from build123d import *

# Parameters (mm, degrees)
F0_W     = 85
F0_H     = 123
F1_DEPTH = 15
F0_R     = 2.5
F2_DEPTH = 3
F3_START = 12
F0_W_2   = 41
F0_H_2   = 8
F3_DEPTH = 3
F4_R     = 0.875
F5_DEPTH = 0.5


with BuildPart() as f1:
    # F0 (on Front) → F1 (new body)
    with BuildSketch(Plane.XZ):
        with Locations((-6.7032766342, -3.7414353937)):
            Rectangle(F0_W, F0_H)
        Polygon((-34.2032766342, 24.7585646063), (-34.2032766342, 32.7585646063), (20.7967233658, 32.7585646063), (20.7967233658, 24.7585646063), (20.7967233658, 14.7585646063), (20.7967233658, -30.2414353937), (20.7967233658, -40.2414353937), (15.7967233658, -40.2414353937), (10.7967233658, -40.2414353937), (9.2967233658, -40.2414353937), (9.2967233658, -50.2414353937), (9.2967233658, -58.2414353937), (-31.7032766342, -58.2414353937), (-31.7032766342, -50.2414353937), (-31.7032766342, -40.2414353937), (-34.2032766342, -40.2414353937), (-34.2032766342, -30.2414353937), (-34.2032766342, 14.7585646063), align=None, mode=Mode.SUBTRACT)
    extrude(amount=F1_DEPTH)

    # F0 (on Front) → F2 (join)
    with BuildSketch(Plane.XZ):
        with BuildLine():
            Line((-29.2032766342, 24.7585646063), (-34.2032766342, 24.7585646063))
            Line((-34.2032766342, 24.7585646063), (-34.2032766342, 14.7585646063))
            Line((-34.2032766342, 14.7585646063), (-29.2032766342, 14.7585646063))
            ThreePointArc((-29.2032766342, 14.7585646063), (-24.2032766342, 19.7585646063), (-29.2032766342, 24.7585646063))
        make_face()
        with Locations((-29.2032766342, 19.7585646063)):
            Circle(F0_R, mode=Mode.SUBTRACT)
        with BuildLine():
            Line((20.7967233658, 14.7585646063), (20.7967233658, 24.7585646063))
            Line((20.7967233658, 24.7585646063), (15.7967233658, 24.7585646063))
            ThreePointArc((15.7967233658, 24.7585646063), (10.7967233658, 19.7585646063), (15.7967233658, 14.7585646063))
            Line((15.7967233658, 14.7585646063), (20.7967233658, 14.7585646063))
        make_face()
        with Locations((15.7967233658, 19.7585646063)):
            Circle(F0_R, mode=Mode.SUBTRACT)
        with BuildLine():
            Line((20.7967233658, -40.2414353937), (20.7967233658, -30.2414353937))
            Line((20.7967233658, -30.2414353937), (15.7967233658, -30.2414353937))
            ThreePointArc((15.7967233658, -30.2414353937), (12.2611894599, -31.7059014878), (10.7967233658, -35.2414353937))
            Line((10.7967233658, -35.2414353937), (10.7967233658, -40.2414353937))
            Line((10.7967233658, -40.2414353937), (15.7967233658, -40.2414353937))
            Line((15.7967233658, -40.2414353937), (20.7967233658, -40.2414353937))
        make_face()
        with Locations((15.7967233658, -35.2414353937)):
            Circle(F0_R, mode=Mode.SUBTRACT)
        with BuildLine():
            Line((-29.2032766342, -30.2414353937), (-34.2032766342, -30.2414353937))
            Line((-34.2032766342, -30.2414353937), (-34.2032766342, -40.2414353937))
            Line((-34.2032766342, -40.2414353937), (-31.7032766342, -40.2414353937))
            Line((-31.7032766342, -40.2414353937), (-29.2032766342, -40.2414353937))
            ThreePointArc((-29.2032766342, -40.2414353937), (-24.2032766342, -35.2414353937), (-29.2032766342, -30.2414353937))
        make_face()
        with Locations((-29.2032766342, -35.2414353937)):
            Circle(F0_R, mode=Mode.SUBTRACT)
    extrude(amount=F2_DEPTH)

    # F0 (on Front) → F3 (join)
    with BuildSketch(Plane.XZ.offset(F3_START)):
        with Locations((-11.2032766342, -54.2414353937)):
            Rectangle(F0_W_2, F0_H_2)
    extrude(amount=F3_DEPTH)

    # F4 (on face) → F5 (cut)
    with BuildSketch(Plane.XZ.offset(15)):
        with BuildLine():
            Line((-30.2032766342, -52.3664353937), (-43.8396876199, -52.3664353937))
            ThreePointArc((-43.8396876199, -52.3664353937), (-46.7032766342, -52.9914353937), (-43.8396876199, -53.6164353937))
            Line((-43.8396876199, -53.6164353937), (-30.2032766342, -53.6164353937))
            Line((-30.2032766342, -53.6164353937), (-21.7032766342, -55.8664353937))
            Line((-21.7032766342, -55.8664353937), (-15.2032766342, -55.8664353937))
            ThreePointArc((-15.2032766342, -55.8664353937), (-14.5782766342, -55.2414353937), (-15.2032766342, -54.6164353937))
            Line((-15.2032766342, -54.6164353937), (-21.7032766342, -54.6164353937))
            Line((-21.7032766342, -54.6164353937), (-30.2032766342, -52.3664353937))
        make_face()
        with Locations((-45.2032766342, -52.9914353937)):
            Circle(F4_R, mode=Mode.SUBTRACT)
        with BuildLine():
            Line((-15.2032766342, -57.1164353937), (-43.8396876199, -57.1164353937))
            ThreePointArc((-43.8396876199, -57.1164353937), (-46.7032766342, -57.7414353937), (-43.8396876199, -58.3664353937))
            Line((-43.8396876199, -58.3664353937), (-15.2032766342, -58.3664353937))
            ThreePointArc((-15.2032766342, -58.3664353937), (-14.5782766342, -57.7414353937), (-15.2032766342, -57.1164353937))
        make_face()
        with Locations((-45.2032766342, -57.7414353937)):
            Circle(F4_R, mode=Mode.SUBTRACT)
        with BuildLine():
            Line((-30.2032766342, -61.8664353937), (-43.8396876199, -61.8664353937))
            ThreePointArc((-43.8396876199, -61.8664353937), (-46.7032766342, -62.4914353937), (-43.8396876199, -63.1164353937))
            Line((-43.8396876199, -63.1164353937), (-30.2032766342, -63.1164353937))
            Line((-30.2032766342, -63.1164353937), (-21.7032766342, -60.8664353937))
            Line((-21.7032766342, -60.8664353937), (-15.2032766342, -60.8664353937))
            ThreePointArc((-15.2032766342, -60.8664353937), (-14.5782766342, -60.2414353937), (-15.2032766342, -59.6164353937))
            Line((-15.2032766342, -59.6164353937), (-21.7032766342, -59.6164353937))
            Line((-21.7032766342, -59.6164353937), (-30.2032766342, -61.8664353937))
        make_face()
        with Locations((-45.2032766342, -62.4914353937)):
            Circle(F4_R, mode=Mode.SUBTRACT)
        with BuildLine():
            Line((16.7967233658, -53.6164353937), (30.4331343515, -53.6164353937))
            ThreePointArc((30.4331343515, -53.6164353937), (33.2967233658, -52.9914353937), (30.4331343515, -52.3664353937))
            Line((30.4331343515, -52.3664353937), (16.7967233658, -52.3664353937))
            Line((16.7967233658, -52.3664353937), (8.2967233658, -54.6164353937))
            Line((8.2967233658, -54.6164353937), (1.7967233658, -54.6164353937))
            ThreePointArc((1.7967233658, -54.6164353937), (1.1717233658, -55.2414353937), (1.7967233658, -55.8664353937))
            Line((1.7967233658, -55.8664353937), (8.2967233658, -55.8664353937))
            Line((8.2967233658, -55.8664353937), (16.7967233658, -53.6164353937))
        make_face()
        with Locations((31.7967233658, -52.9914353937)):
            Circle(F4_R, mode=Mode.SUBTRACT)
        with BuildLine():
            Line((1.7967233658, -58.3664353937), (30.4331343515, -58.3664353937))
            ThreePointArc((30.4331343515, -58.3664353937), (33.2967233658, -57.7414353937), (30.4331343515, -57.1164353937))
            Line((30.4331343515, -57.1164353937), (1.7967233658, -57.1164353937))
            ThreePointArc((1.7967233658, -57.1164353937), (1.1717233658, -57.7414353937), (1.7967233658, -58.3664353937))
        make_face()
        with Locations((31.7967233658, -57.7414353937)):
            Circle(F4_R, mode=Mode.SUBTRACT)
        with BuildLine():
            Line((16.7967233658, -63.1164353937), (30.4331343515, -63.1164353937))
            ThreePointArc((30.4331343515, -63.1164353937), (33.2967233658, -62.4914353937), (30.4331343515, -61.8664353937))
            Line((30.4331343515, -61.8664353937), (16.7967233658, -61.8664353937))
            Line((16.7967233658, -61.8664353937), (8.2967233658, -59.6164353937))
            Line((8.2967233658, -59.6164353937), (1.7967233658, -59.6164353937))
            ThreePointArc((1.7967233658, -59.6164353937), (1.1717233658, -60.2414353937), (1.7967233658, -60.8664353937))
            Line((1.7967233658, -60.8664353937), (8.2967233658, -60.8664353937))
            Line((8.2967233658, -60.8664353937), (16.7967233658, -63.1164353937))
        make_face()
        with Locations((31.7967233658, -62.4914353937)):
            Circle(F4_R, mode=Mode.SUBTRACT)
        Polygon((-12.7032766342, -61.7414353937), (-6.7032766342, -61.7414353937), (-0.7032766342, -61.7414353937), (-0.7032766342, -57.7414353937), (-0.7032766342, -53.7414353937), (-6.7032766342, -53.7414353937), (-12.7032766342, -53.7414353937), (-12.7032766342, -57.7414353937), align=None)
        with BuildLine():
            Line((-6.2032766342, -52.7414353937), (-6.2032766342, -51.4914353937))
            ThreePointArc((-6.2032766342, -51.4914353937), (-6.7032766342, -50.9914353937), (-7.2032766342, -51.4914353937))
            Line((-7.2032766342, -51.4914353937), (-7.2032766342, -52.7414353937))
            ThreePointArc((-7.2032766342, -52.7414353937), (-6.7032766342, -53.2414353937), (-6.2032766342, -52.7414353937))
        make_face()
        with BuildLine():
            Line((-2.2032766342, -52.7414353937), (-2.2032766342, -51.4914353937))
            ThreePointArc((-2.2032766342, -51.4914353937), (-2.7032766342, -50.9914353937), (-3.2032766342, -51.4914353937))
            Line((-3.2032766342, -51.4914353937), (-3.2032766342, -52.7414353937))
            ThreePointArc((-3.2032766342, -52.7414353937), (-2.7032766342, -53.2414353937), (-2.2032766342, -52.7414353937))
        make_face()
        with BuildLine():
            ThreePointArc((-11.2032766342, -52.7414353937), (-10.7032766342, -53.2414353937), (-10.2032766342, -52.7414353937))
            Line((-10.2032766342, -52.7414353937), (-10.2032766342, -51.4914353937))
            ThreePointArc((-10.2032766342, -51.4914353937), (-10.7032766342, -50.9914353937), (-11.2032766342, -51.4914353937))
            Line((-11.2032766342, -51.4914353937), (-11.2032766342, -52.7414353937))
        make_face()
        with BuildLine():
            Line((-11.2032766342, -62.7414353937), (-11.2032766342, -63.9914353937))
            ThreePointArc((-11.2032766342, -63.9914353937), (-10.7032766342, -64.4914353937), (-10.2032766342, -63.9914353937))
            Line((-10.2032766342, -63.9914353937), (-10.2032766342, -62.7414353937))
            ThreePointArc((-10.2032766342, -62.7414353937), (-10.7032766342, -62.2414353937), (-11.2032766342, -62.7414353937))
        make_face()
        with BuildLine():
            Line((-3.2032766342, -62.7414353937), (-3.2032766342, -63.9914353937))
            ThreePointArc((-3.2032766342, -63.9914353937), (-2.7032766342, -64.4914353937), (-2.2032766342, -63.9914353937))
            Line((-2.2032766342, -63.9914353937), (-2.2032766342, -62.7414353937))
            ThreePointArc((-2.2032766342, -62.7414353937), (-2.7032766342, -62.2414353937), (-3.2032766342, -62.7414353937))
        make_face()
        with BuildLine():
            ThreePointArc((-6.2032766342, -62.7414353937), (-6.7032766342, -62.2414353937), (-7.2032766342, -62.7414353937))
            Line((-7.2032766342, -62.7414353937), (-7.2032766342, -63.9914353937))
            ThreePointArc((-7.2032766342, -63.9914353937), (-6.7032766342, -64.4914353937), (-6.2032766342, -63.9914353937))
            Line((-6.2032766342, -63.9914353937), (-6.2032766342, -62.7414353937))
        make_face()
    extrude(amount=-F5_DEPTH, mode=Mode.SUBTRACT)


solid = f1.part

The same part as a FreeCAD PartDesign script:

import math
import FreeCAD as App
import Part
import Sketcher
from FreeCAD import Vector

doc = App.newDocument("Part")
body = doc.addObject("PartDesign::Body", "Body")

sketch1 = body.newObject("Sketcher::SketchObject", "Sketch")
sketch1.AttachmentSupport = (doc.getObject("XZ_Plane"), [""])
sketch1.MapMode = "FlatFace"
sketch1.addGeometry([
    Part.LineSegment(Vector(-49.2, 57.8, 0), Vector(-49.2, -65.2, 0)),
    Part.LineSegment(Vector(-49.2, -65.2, 0), Vector(35.8, -65.2, 0)),
    Part.LineSegment(Vector(35.8, -65.2, 0), Vector(35.8, 57.8, 0)),
    Part.LineSegment(Vector(35.8, 57.8, 0), Vector(-49.2, 57.8, 0)),
    Part.LineSegment(Vector(-34.2, -40.2, 0), Vector(-34.2, 32.8, 0)),
    Part.LineSegment(Vector(-34.2, 32.8, 0), Vector(20.8, 32.8, 0)),
    Part.LineSegment(Vector(20.8, 32.8, 0), Vector(20.8, -40.2, 0)),
    Part.LineSegment(Vector(20.8, -40.2, 0), Vector(9.3, -40.2, 0)),
    Part.LineSegment(Vector(9.3, -40.2, 0), Vector(9.3, -58.2, 0)),
    Part.LineSegment(Vector(9.3, -58.2, 0), Vector(-31.7, -58.2, 0)),
    Part.LineSegment(Vector(-31.7, -58.2, 0), Vector(-31.7, -40.2, 0)),
    Part.LineSegment(Vector(-31.7, -40.2, 0), Vector(-34.2, -40.2, 0)),
], False)
sketch1.addConstraint([
    Sketcher.Constraint("Coincident", 0, 2, 1, 1),
    Sketcher.Constraint("Coincident", 1, 2, 2, 1),
    Sketcher.Constraint("Coincident", 2, 2, 3, 1),
    Sketcher.Constraint("Coincident", 3, 2, 0, 1),
    Sketcher.Constraint("Coincident", 4, 2, 5, 1),
    Sketcher.Constraint("Coincident", 5, 2, 6, 1),
    Sketcher.Constraint("Coincident", 6, 2, 7, 1),
    Sketcher.Constraint("Coincident", 7, 2, 8, 1),
    Sketcher.Constraint("Coincident", 8, 2, 9, 1),
    Sketcher.Constraint("Coincident", 9, 2, 10, 1),
    Sketcher.Constraint("Coincident", 10, 2, 11, 1),
    Sketcher.Constraint("Coincident", 11, 2, 4, 1),
    Sketcher.Constraint("Vertical", 0),
    Sketcher.Constraint("Horizontal", 1),
    Sketcher.Constraint("Vertical", 2),
    Sketcher.Constraint("Horizontal", 3),
    Sketcher.Constraint("Vertical", 4),
    Sketcher.Constraint("Horizontal", 5),
    Sketcher.Constraint("Vertical", 6),
    Sketcher.Constraint("Horizontal", 7),
    Sketcher.Constraint("Vertical", 8),
    Sketcher.Constraint("Horizontal", 9),
    Sketcher.Constraint("Vertical", 10),
    Sketcher.Constraint("Horizontal", 11),
    Sketcher.Constraint("Horizontal", 7, 2, 10, 2),
    Sketcher.Constraint("DistanceX", 1, 1, 1, 2, 85.0),
    Sketcher.Constraint("DistanceX", 5, 1, 5, 2, 55.0),
    Sketcher.Constraint("DistanceX", 9, 2, 9, 1, 41.0),
    Sketcher.Constraint("DistanceY", 0, 2, 0, 1, 123.0),
    Sketcher.Constraint("DistanceY", 4, 1, 4, 2, 73.0),
    Sketcher.Constraint("DistanceY", 8, 2, 8, 1, 18.0),
    Sketcher.Constraint("DistanceX", 7, 2, 7, 1, 11.5),
    Sketcher.Constraint("DistanceX", 3, 2, 4, 2, 15.0),
    Sketcher.Constraint("DistanceY", 4, 2, 3, 2, 25.0),
    Sketcher.Constraint("DistanceX", 0, 2, -1, 1, 49.203277),
    Sketcher.Constraint("DistanceY", 0, 2, -1, 1, 65.241435),
])
pad1 = body.newObject("PartDesign::Pad", "Pad")
pad1.Profile = sketch1
pad1.Length = 15

sketch2 = body.newObject("Sketcher::SketchObject", "Sketch001")
sketch2.AttachmentSupport = (doc.getObject("XZ_Plane"), [""])
sketch2.MapMode = "FlatFace"
sketch2.addGeometry([
    Part.LineSegment(Vector(-29.2, 24.8, 0), Vector(-34.2, 24.8, 0)),
    Part.LineSegment(Vector(-34.2, 24.8, 0), Vector(-34.2, 14.8, 0)),
    Part.LineSegment(Vector(-34.2, 14.8, 0), Vector(-29.2, 14.8, 0)),
    Part.ArcOfCircle(Part.Circle(Vector(-29.2, 19.8, 0), Vector(0, 0, 1), 5), math.radians(-90), math.radians(90)),
    Part.Circle(Vector(-29.2, 19.8, 0), Vector(0, 0, 1), 2.5),
    Part.LineSegment(Vector(20.8, 14.8, 0), Vector(20.8, 24.8, 0)),
    Part.LineSegment(Vector(20.8, 24.8, 0), Vector(15.8, 24.8, 0)),
    Part.ArcOfCircle(Part.Circle(Vector(15.8, 19.8, 0), Vector(0, 0, 1), 5), math.radians(90), math.radians(270)),
    Part.LineSegment(Vector(15.8, 14.8, 0), Vector(20.8, 14.8, 0)),
    Part.Circle(Vector(15.8, 19.8, 0), Vector(0, 0, 1), 2.5),
    Part.LineSegment(Vector(20.8, -40.2, 0), Vector(20.8, -30.2, 0)),
    Part.LineSegment(Vector(20.8, -30.2, 0), Vector(15.8, -30.2, 0)),
    Part.ArcOfCircle(Part.Circle(Vector(15.8, -35.2, 0), Vector(0, 0, 1), 5), math.radians(90), math.radians(180)),
    Part.LineSegment(Vector(10.8, -35.2, 0), Vector(10.8, -40.2, 0)),
    Part.LineSegment(Vector(10.8, -40.2, 0), Vector(20.8, -40.2, 0)),
    Part.Circle(Vector(15.8, -35.2, 0), Vector(0, 0, 1), 2.5),
    Part.LineSegment(Vector(-29.2, -30.2, 0), Vector(-34.2, -30.2, 0)),
    Part.LineSegment(Vector(-34.2, -30.2, 0), Vector(-34.2, -40.2, 0)),
    Part.LineSegment(Vector(-34.2, -40.2, 0), Vector(-29.2, -40.2, 0)),
    Part.ArcOfCircle(Part.Circle(Vector(-29.2, -35.2, 0), Vector(0, 0, 1), 5), math.radians(-90), math.radians(90)),
    Part.Circle(Vector(-29.2, -35.2, 0), Vector(0, 0, 1), 2.5),
], False)
sketch2.addConstraint([
    Sketcher.Constraint("Coincident", 0, 2, 1, 1),
    Sketcher.Constraint("Coincident", 1, 2, 2, 1),
    Sketcher.Constraint("Tangent", 2, 2, 3, 1),
    Sketcher.Constraint("Tangent", 3, 2, 0, 1),
    Sketcher.Constraint("Coincident", 5, 2, 6, 1),
    Sketcher.Constraint("Tangent", 6, 2, 7, 1),
    Sketcher.Constraint("Tangent", 7, 2, 8, 1),
    Sketcher.Constraint("Coincident", 8, 2, 5, 1),
    Sketcher.Constraint("Coincident", 10, 2, 11, 1),
    Sketcher.Constraint("Tangent", 11, 2, 12, 1),
    Sketcher.Constraint("Tangent", 12, 2, 13, 1),
    Sketcher.Constraint("Coincident", 13, 2, 14, 1),
    Sketcher.Constraint("Coincident", 14, 2, 10, 1),
    Sketcher.Constraint("Coincident", 16, 2, 17, 1),
    Sketcher.Constraint("Coincident", 17, 2, 18, 1),
    Sketcher.Constraint("Tangent", 18, 2, 19, 1),
    Sketcher.Constraint("Tangent", 19, 2, 16, 1),
    Sketcher.Constraint("Horizontal", 0),
    Sketcher.Constraint("Vertical", 1),
    Sketcher.Constraint("Horizontal", 2),
    Sketcher.Constraint("Vertical", 5),
    Sketcher.Constraint("Horizontal", 6),
    Sketcher.Constraint("Horizontal", 8),
    Sketcher.Constraint("Vertical", 10),
    Sketcher.Constraint("Horizontal", 11),
    Sketcher.Constraint("Vertical", 13),
    Sketcher.Constraint("Horizontal", 14),
    Sketcher.Constraint("Horizontal", 16),
    Sketcher.Constraint("Vertical", 17),
    Sketcher.Constraint("Horizontal", 18),
    Sketcher.Constraint("Coincident", 4, 3, 3, 3),
    Sketcher.Constraint("Coincident", 9, 3, 7, 3),
    Sketcher.Constraint("Coincident", 15, 3, 12, 3),
    Sketcher.Constraint("Coincident", 20, 3, 19, 3),
    Sketcher.Constraint("Equal", 3, 7),
    Sketcher.Constraint("Equal", 4, 9),
    Sketcher.Constraint("Equal", 7, 12),
    Sketcher.Constraint("Equal", 9, 15),
    Sketcher.Constraint("Equal", 12, 19),
    Sketcher.Constraint("Equal", 15, 20),
    Sketcher.Constraint("Horizontal", 4, 3, 7, 3),
    Sketcher.Constraint("Horizontal", 15, 3, 19, 3),
    Sketcher.Constraint("Horizontal", 14, 2, 17, 2),
    Sketcher.Constraint("Vertical", 9, 3, 12, 3),
    Sketcher.Constraint("Vertical", 4, 3, 19, 3),
    Sketcher.Constraint("Vertical", 8, 2, 10, 2),
    Sketcher.Constraint("Vertical", 1, 2, 16, 2),
    Sketcher.Constraint("Equal", 2, 6),
    Sketcher.Constraint("Equal", 14, 1),
    Sketcher.Constraint("Diameter", 4, 5.0),
    Sketcher.Constraint("Radius", 3, 5.0),
    Sketcher.Constraint("DistanceX", 3, 3, 7, 3, 45.0),
    Sketcher.Constraint("DistanceY", 12, 3, 7, 3, 55.0),
    Sketcher.Constraint("DistanceX", 3, 3, -1, 1, 29.203277),
    Sketcher.Constraint("DistanceY", -1, 1, 3, 3, 19.758565),
])
pad2 = body.newObject("PartDesign::Pad", "Pad001")
pad2.Profile = sketch2
pad2.Length = 3

sketch3 = body.newObject("Sketcher::SketchObject", "Sketch002")
sketch3.AttachmentSupport = (doc.getObject("XZ_Plane"), [""])
sketch3.MapMode = "FlatFace"
sketch3.AttachmentOffset = App.Placement(Vector(0, 0, 12), App.Rotation())
sketch3.addGeometry([
    Part.LineSegment(Vector(-32, -50, 0), Vector(-32, -58, 0)),
    Part.LineSegment(Vector(-32, -58, 0), Vector(9, -58, 0)),
    Part.LineSegment(Vector(9, -58, 0), Vector(9, -50, 0)),
    Part.LineSegment(Vector(9, -50, 0), Vector(-32, -50, 0)),
], False)
sketch3.addConstraint([
    Sketcher.Constraint("Coincident", 0, 2, 1, 1),
    Sketcher.Constraint("Coincident", 1, 2, 2, 1),
    Sketcher.Constraint("Coincident", 2, 2, 3, 1),
    Sketcher.Constraint("Coincident", 3, 2, 0, 1),
    Sketcher.Constraint("Vertical", 0),
    Sketcher.Constraint("Horizontal", 1),
    Sketcher.Constraint("Vertical", 2),
    Sketcher.Constraint("Horizontal", 3),
    Sketcher.Constraint("DistanceX", 1, 1, 1, 2, 41.0),
    Sketcher.Constraint("DistanceY", 0, 2, 0, 1, 8.0),
    Sketcher.Constraint("DistanceX", 0, 2, -1, 1, 31.703277),
    Sketcher.Constraint("DistanceY", 0, 2, -1, 1, 58.241435),
])
pad3 = body.newObject("PartDesign::Pad", "Pad002")
pad3.Profile = sketch3
pad3.Length = 3

sketch4 = body.newObject("Sketcher::SketchObject", "Sketch003")
sketch4.AttachmentSupport = (doc.getObject("XZ_Plane"), [""])
sketch4.MapMode = "FlatFace"
sketch4.AttachmentOffset = App.Placement(Vector(0, 0, 15), App.Rotation())
sketch4.addGeometry([
    Part.LineSegment(Vector(-30.2, -52.4, 0), Vector(-43.8, -52.4, 0)),
    Part.ArcOfCircle(Part.Circle(Vector(-45.2, -53, 0), Vector(0, 0, 1), 1.5), math.radians(25), math.radians(335)),
    Part.LineSegment(Vector(-43.8, -53.6, 0), Vector(-30.2, -53.6, 0)),
    Part.LineSegment(Vector(-30.2, -53.6, 0), Vector(-21.7, -55.9, 0)),
    Part.LineSegment(Vector(-21.7, -55.9, 0), Vector(-15.2, -55.9, 0)),
    Part.ArcOfCircle(Part.Circle(Vector(-15.2, -55.2, 0), Vector(0, 0, 1), 0.6), math.radians(-90), math.radians(90)),
    Part.LineSegment(Vector(-15.2, -54.6, 0), Vector(-21.7, -54.6, 0)),
    Part.LineSegment(Vector(-21.7, -54.6, 0), Vector(-30.2, -52.4, 0)),
    Part.Circle(Vector(-45.2, -53, 0), Vector(0, 0, 1), 0.9),
    Part.LineSegment(Vector(-15.2, -57.1, 0), Vector(-43.8, -57.1, 0)),
    Part.ArcOfCircle(Part.Circle(Vector(-45.2, -57.7, 0), Vector(0, 0, 1), 1.5), math.radians(25), math.radians(335)),
    Part.LineSegment(Vector(-43.8, -58.4, 0), Vector(-15.2, -58.4, 0)),
    Part.ArcOfCircle(Part.Circle(Vector(-15.2, -57.7, 0), Vector(0, 0, 1), 0.6), math.radians(-90), math.radians(90)),
    Part.Circle(Vector(-45.2, -57.7, 0), Vector(0, 0, 1), 0.9),
    Part.LineSegment(Vector(-30.2, -61.9, 0), Vector(-43.8, -61.9, 0)),
    Part.ArcOfCircle(Part.Circle(Vector(-45.2, -62.5, 0), Vector(0, 0, 1), 1.5), math.radians(25), math.radians(335)),
    Part.LineSegment(Vector(-43.8, -63.1, 0), Vector(-30.2, -63.1, 0)),
    Part.LineSegment(Vector(-30.2, -63.1, 0), Vector(-21.7, -60.9, 0)),
    Part.LineSegment(Vector(-21.7, -60.9, 0), Vector(-15.2, -60.9, 0)),
    Part.ArcOfCircle(Part.Circle(Vector(-15.2, -60.2, 0), Vector(0, 0, 1), 0.6), math.radians(-90), math.radians(90)),
    Part.LineSegment(Vector(-15.2, -59.6, 0), Vector(-21.7, -59.6, 0)),
    Part.LineSegment(Vector(-21.7, -59.6, 0), Vector(-30.2, -61.9, 0)),
    Part.Circle(Vector(-45.2, -62.5, 0), Vector(0, 0, 1), 0.9),
    Part.LineSegment(Vector(16.8, -53.6, 0), Vector(30.4, -53.6, 0)),
    Part.ArcOfCircle(Part.Circle(Vector(31.8, -53, 0), Vector(0, 0, 1), 1.5), math.radians(-155), math.radians(155)),
    Part.LineSegment(Vector(30.4, -52.4, 0), Vector(16.8, -52.4, 0)),
    Part.LineSegment(Vector(16.8, -52.4, 0), Vector(8.3, -54.6, 0)),
    Part.LineSegment(Vector(8.3, -54.6, 0), Vector(1.8, -54.6, 0)),
    Part.ArcOfCircle(Part.Circle(Vector(1.8, -55.2, 0), Vector(0, 0, 1), 0.6), math.radians(90), math.radians(270)),
    Part.LineSegment(Vector(1.8, -55.9, 0), Vector(8.3, -55.9, 0)),
    Part.LineSegment(Vector(8.3, -55.9, 0), Vector(16.8, -53.6, 0)),
    Part.Circle(Vector(31.8, -53, 0), Vector(0, 0, 1), 0.9),
    Part.LineSegment(Vector(1.8, -58.4, 0), Vector(30.4, -58.4, 0)),
    Part.ArcOfCircle(Part.Circle(Vector(31.8, -57.7, 0), Vector(0, 0, 1), 1.5), math.radians(-155), math.radians(155)),
    Part.LineSegment(Vector(30.4, -57.1, 0), Vector(1.8, -57.1, 0)),
    Part.ArcOfCircle(Part.Circle(Vector(1.8, -57.7, 0), Vector(0, 0, 1), 0.6), math.radians(90), math.radians(270)),
    Part.Circle(Vector(31.8, -57.7, 0), Vector(0, 0, 1), 0.9),
    Part.LineSegment(Vector(16.8, -63.1, 0), Vector(30.4, -63.1, 0)),
    Part.ArcOfCircle(Part.Circle(Vector(31.8, -62.5, 0), Vector(0, 0, 1), 1.5), math.radians(-155), math.radians(155)),
    Part.LineSegment(Vector(30.4, -61.9, 0), Vector(16.8, -61.9, 0)),
    Part.LineSegment(Vector(16.8, -61.9, 0), Vector(8.3, -59.6, 0)),
    Part.LineSegment(Vector(8.3, -59.6, 0), Vector(1.8, -59.6, 0)),
    Part.ArcOfCircle(Part.Circle(Vector(1.8, -60.2, 0), Vector(0, 0, 1), 0.6), math.radians(90), math.radians(270)),
    Part.LineSegment(Vector(1.8, -60.9, 0), Vector(8.3, -60.9, 0)),
    Part.LineSegment(Vector(8.3, -60.9, 0), Vector(16.8, -63.1, 0)),
    Part.Circle(Vector(31.8, -62.5, 0), Vector(0, 0, 1), 0.9),
    Part.LineSegment(Vector(-12.7, -61.7, 0), Vector(-0.7, -61.7, 0)),
    Part.LineSegment(Vector(-0.7, -61.7, 0), Vector(-0.7, -53.7, 0)),
    Part.LineSegment(Vector(-0.7, -53.7, 0), Vector(-12.7, -53.7, 0)),
    Part.LineSegment(Vector(-12.7, -53.7, 0), Vector(-12.7, -61.7, 0)),
    Part.LineSegment(Vector(-6.2, -52.7, 0), Vector(-6.2, -51.5, 0)),
    Part.ArcOfCircle(Part.Circle(Vector(-6.7, -51.5, 0), Vector(0, 0, 1), 0.5), math.radians(0), math.radians(180)),
    Part.LineSegment(Vector(-7.2, -51.5, 0), Vector(-7.2, -52.7, 0)),
    Part.ArcOfCircle(Part.Circle(Vector(-6.7, -52.7, 0), Vector(0, 0, 1), 0.5), math.radians(180), math.radians(360)),
    Part.LineSegment(Vector(-2.2, -52.7, 0), Vector(-2.2, -51.5, 0)),
    Part.ArcOfCircle(Part.Circle(Vector(-2.7, -51.5, 0), Vector(0, 0, 1), 0.5), math.radians(0), math.radians(180)),
    Part.LineSegment(Vector(-3.2, -51.5, 0), Vector(-3.2, -52.7, 0)),
    Part.ArcOfCircle(Part.Circle(Vector(-2.7, -52.7, 0), Vector(0, 0, 1), 0.5), math.radians(180), math.radians(360)),
    Part.ArcOfCircle(Part.Circle(Vector(-10.7, -52.7, 0), Vector(0, 0, 1), 0.5), math.radians(180), math.radians(360)),
    Part.LineSegment(Vector(-10.2, -52.7, 0), Vector(-10.2, -51.5, 0)),
    Part.ArcOfCircle(Part.Circle(Vector(-10.7, -51.5, 0), Vector(0, 0, 1), 0.5), math.radians(0), math.radians(180)),
    Part.LineSegment(Vector(-11.2, -51.5, 0), Vector(-11.2, -52.7, 0)),
    Part.LineSegment(Vector(-11.2, -62.7, 0), Vector(-11.2, -64, 0)),
    Part.ArcOfCircle(Part.Circle(Vector(-10.7, -64, 0), Vector(0, 0, 1), 0.5), math.radians(180), math.radians(360)),
    Part.LineSegment(Vector(-10.2, -64, 0), Vector(-10.2, -62.7, 0)),
    Part.ArcOfCircle(Part.Circle(Vector(-10.7, -62.7, 0), Vector(0, 0, 1), 0.5), math.radians(0), math.radians(180)),
    Part.LineSegment(Vector(-3.2, -62.7, 0), Vector(-3.2, -64, 0)),
    Part.ArcOfCircle(Part.Circle(Vector(-2.7, -64, 0), Vector(0, 0, 1), 0.5), math.radians(180), math.radians(360)),
    Part.LineSegment(Vector(-2.2, -64, 0), Vector(-2.2, -62.7, 0)),
    Part.ArcOfCircle(Part.Circle(Vector(-2.7, -62.7, 0), Vector(0, 0, 1), 0.5), math.radians(0), math.radians(180)),
    Part.ArcOfCircle(Part.Circle(Vector(-6.7, -62.7, 0), Vector(0, 0, 1), 0.5), math.radians(0), math.radians(180)),
    Part.LineSegment(Vector(-7.2, -62.7, 0), Vector(-7.2, -64, 0)),
    Part.ArcOfCircle(Part.Circle(Vector(-6.7, -64, 0), Vector(0, 0, 1), 0.5), math.radians(180), math.radians(360)),
    Part.LineSegment(Vector(-6.2, -64, 0), Vector(-6.2, -62.7, 0)),
], False)
sketch4.addConstraint([
    Sketcher.Constraint("Coincident", 0, 2, 1, 1),
    Sketcher.Constraint("Coincident", 1, 2, 2, 1),
    Sketcher.Constraint("Coincident", 2, 2, 3, 1),
    Sketcher.Constraint("Coincident", 3, 2, 4, 1),
    Sketcher.Constraint("Tangent", 4, 2, 5, 1),
    Sketcher.Constraint("Tangent", 5, 2, 6, 1),
    Sketcher.Constraint("Coincident", 6, 2, 7, 1),
    Sketcher.Constraint("Coincident", 7, 2, 0, 1),
    Sketcher.Constraint("Coincident", 9, 2, 10, 1),
    Sketcher.Constraint("Coincident", 10, 2, 11, 1),
    Sketcher.Constraint("Tangent", 11, 2, 12, 1),
    Sketcher.Constraint("Tangent", 12, 2, 9, 1),
    Sketcher.Constraint("Coincident", 14, 2, 15, 1),
    Sketcher.Constraint("Coincident", 15, 2, 16, 1),
    Sketcher.Constraint("Coincident", 16, 2, 17, 1),
    Sketcher.Constraint("Coincident", 17, 2, 18, 1),
    Sketcher.Constraint("Tangent", 18, 2, 19, 1),
    Sketcher.Constraint("Tangent", 19, 2, 20, 1),
    Sketcher.Constraint("Coincident", 20, 2, 21, 1),
    Sketcher.Constraint("Coincident", 21, 2, 14, 1),
    Sketcher.Constraint("Coincident", 23, 2, 24, 1),
    Sketcher.Constraint("Coincident", 24, 2, 25, 1),
    Sketcher.Constraint("Coincident", 25, 2, 26, 1),
    Sketcher.Constraint("Coincident", 26, 2, 27, 1),
    Sketcher.Constraint("Tangent", 27, 2, 28, 1),
    Sketcher.Constraint("Tangent", 28, 2, 29, 1),
    Sketcher.Constraint("Coincident", 29, 2, 30, 1),
    Sketcher.Constraint("Coincident", 30, 2, 23, 1),
    Sketcher.Constraint("Coincident", 32, 2, 33, 1),
    Sketcher.Constraint("Coincident", 33, 2, 34, 1),
    Sketcher.Constraint("Tangent", 34, 2, 35, 1),
    Sketcher.Constraint("Tangent", 35, 2, 32, 1),
    Sketcher.Constraint("Coincident", 37, 2, 38, 1),
    Sketcher.Constraint("Coincident", 38, 2, 39, 1),
    Sketcher.Constraint("Coincident", 39, 2, 40, 1),
    Sketcher.Constraint("Coincident", 40, 2, 41, 1),
    Sketcher.Constraint("Tangent", 41, 2, 42, 1),
    Sketcher.Constraint("Tangent", 42, 2, 43, 1),
    Sketcher.Constraint("Coincident", 43, 2, 44, 1),
    Sketcher.Constraint("Coincident", 44, 2, 37, 1),
    Sketcher.Constraint("Coincident", 46, 2, 47, 1),
    Sketcher.Constraint("Coincident", 47, 2, 48, 1),
    Sketcher.Constraint("Coincident", 48, 2, 49, 1),
    Sketcher.Constraint("Coincident", 49, 2, 46, 1),
    Sketcher.Constraint("Tangent", 50, 2, 51, 1),
    Sketcher.Constraint("Tangent", 51, 2, 52, 1),
    Sketcher.Constraint("Tangent", 52, 2, 53, 1),
    Sketcher.Constraint("Tangent", 53, 2, 50, 1),
    Sketcher.Constraint("Tangent", 54, 2, 55, 1),
    Sketcher.Constraint("Tangent", 55, 2, 56, 1),
    Sketcher.Constraint("Tangent", 56, 2, 57, 1),
    Sketcher.Constraint("Tangent", 57, 2, 54, 1),
    Sketcher.Constraint("Tangent", 58, 2, 59, 1),
    Sketcher.Constraint("Tangent", 59, 2, 60, 1),
    Sketcher.Constraint("Tangent", 60, 2, 61, 1),
    Sketcher.Constraint("Tangent", 61, 2, 58, 1),
    Sketcher.Constraint("Tangent", 62, 2, 63, 1),
    Sketcher.Constraint("Tangent", 63, 2, 64, 1),
    Sketcher.Constraint("Tangent", 64, 2, 65, 1),
    Sketcher.Constraint("Tangent", 65, 2, 62, 1),
    Sketcher.Constraint("Tangent", 66, 2, 67, 1),
    Sketcher.Constraint("Tangent", 67, 2, 68, 1),
    Sketcher.Constraint("Tangent", 68, 2, 69, 1),
    Sketcher.Constraint("Tangent", 69, 2, 66, 1),
    Sketcher.Constraint("Tangent", 70, 2, 71, 1),
    Sketcher.Constraint("Tangent", 71, 2, 72, 1),
    Sketcher.Constraint("Tangent", 72, 2, 73, 1),
    Sketcher.Constraint("Tangent", 73, 2, 70, 1),
    Sketcher.Constraint("Horizontal", 0),
    Sketcher.Constraint("Horizontal", 2),
    Sketcher.Constraint("Horizontal", 4),
    Sketcher.Constraint("Horizontal", 6),
    Sketcher.Constraint("Horizontal", 9),
    Sketcher.Constraint("Horizontal", 11),
    Sketcher.Constraint("Horizontal", 14),
    Sketcher.Constraint("Horizontal", 16),
    Sketcher.Constraint("Horizontal", 18),
    Sketcher.Constraint("Horizontal", 20),
    Sketcher.Constraint("Horizontal", 23),
    Sketcher.Constraint("Horizontal", 25),
    Sketcher.Constraint("Horizontal", 27),
    Sketcher.Constraint("Horizontal", 29),
    Sketcher.Constraint("Horizontal", 32),
    Sketcher.Constraint("Horizontal", 34),
    Sketcher.Constraint("Horizontal", 37),
    Sketcher.Constraint("Horizontal", 39),
    Sketcher.Constraint("Horizontal", 41),
    Sketcher.Constraint("Horizontal", 43),
    Sketcher.Constraint("Horizontal", 46),
    Sketcher.Constraint("Vertical", 47),
    Sketcher.Constraint("Horizontal", 48),
    Sketcher.Constraint("Vertical", 49),
    Sketcher.Constraint("Vertical", 50),
    Sketcher.Constraint("Vertical", 52),
    Sketcher.Constraint("Vertical", 54),
    Sketcher.Constraint("Vertical", 56),
    Sketcher.Constraint("Vertical", 59),
    Sketcher.Constraint("Vertical", 61),
    Sketcher.Constraint("Vertical", 62),
    Sketcher.Constraint("Vertical", 64),
    Sketcher.Constraint("Vertical", 66),
    Sketcher.Constraint("Vertical", 68),
    Sketcher.Constraint("Vertical", 71),
    Sketcher.Constraint("Vertical", 73),
    Sketcher.Constraint("Coincident", 8, 3, 1, 3),
    Sketcher.Constraint("Coincident", 13, 3, 10, 3),
    Sketcher.Constraint("Coincident", 22, 3, 15, 3),
    Sketcher.Constraint("Coincident", 31, 3, 24, 3),
    Sketcher.Constraint("Coincident", 36, 3, 33, 3),
    Sketcher.Constraint("Coincident", 45, 3, 38, 3),
    Sketcher.Constraint("Equal", 1, 10),
    Sketcher.Constraint("Equal", 5, 12),
    Sketcher.Constraint("Equal", 8, 13),
    Sketcher.Constraint("Equal", 10, 15),
    Sketcher.Constraint("Equal", 12, 19),
    Sketcher.Constraint("Equal", 13, 22),
    Sketcher.Constraint("Equal", 15, 24),
    Sketcher.Constraint("Equal", 19, 28),
    Sketcher.Constraint("Equal", 22, 31),
    Sketcher.Constraint("Equal", 24, 33),
    Sketcher.Constraint("Equal", 28, 35),
    Sketcher.Constraint("Equal", 31, 36),
    Sketcher.Constraint("Equal", 33, 38),
    Sketcher.Constraint("Equal", 35, 42),
    Sketcher.Constraint("Equal", 36, 45),
    Sketcher.Constraint("Equal", 53, 55),
    Sketcher.Constraint("Equal", 57, 58),
    Sketcher.Constraint("Equal", 60, 63),
    Sketcher.Constraint("Equal", 65, 67),
    Sketcher.Constraint("Equal", 69, 70),
    Sketcher.Constraint("Parallel", 3, 7),
    Sketcher.Constraint("Parallel", 17, 21),
    Sketcher.Constraint("Parallel", 21, 26),
    Sketcher.Constraint("Parallel", 26, 30),
    Sketcher.Constraint("Parallel", 7, 40),
    Sketcher.Constraint("Parallel", 40, 44),
    Sketcher.Constraint("Horizontal", 10, 3, 12, 3),
    Sketcher.Constraint("Horizontal", 8, 3, 24, 3),
    Sketcher.Constraint("Horizontal", 5, 3, 28, 3),
    Sketcher.Constraint("Horizontal", 13, 3, 33, 3),
    Sketcher.Constraint("Horizontal", 33, 3, 35, 3),
    Sketcher.Constraint("Horizontal", 22, 3, 38, 3),
    Sketcher.Constraint("Horizontal", 19, 3, 42, 3),
    Sketcher.Constraint("Horizontal", 51, 3, 55, 3),
    Sketcher.Constraint("Horizontal", 53, 3, 57, 3),
    Sketcher.Constraint("Horizontal", 57, 3, 58, 3),
    Sketcher.Constraint("Horizontal", 55, 3, 60, 3),
    Sketcher.Constraint("Horizontal", 63, 3, 67, 3),
    Sketcher.Constraint("Horizontal", 65, 3, 69, 3),
    Sketcher.Constraint("Horizontal", 69, 3, 70, 3),
    Sketcher.Constraint("Horizontal", 67, 3, 72, 3),
    Sketcher.Constraint("Horizontal", 2, 2, 23, 2),
    Sketcher.Constraint("Horizontal", 7, 2, 24, 2),
    Sketcher.Constraint("Horizontal", 16, 2, 37, 2),
    Sketcher.Constraint("Horizontal", 21, 2, 38, 2),
    Sketcher.Constraint("Vertical", 8, 3, 10, 3),
    Sketcher.Constraint("Vertical", 5, 3, 12, 3),
    Sketcher.Constraint("Vertical", 13, 3, 15, 3),
    Sketcher.Constraint("Vertical", 12, 3, 19, 3),
    Sketcher.Constraint("Vertical", 31, 3, 33, 3),
    Sketcher.Constraint("Vertical", 28, 3, 35, 3),
    Sketcher.Constraint("Vertical", 36, 3, 38, 3),
    Sketcher.Constraint("Vertical", 35, 3, 42, 3),
    Sketcher.Constraint("Vertical", 60, 3, 63, 3),
    Sketcher.Constraint("Vertical", 57, 3, 67, 3),
    Sketcher.Constraint("Vertical", 53, 3, 70, 3),
    Sketcher.Constraint("Vertical", 0, 2, 1, 2),
    Sketcher.Constraint("Vertical", 3, 2, 6, 2),
    Sketcher.Constraint("Vertical", 2, 2, 7, 2),
    Sketcher.Constraint("Vertical", 10, 2, 14, 2),
    Sketcher.Constraint("Vertical", 14, 2, 15, 2),
    Sketcher.Constraint("Vertical", 7, 2, 16, 2),
    Sketcher.Constraint("Vertical", 6, 2, 17, 2),
    Sketcher.Constraint("Vertical", 17, 2, 20, 2),
    Sketcher.Constraint("Vertical", 26, 2, 29, 2),
    Sketcher.Constraint("Vertical", 30, 2, 39, 2),
    Sketcher.Constraint("Vertical", 29, 2, 40, 2),
    Sketcher.Constraint("Vertical", 40, 2, 43, 2),
    Sketcher.Constraint("Equal", 16, 23),
    Sketcher.Constraint("Equal", 20, 27),
    Sketcher.Constraint("Equal", 61, 62),
    Sketcher.Constraint("Radius", 1, 1.5),
    Sketcher.Constraint("Radius", 51, 0.5),
    Sketcher.Constraint("Diameter", 8, 1.75),
    Sketcher.Constraint("DistanceX", 46, 1, 46, 2, 12.0),
    Sketcher.Constraint("DistanceY", 47, 1, 47, 2, 8.0),
    Sketcher.Constraint("DistanceX", 4, 1, 4, 2, 6.5),
    Sketcher.Constraint("Radius", 5, 0.625),
    Sketcher.Constraint("DistanceY", 50, 1, 50, 2, 1.25),
    Sketcher.Constraint("DistanceX", 0, 2, 0, 1, 13.636411),
    Sketcher.Constraint("DistanceX", 9, 2, 9, 1, 28.636411),
    Sketcher.Constraint("Distance", 3, 8.792753),
    Sketcher.Constraint("DistanceX", 1, 3, -1, 1, 45.203277),
    Sketcher.Constraint("DistanceY", 1, 3, -1, 1, 52.991435),
    Sketcher.Constraint("DistanceY", 10, 3, -1, 1, 57.741435),
    Sketcher.Constraint("DistanceY", 15, 3, -1, 1, 62.491435),
    Sketcher.Constraint("DistanceX", -1, 1, 24, 3, 31.796723),
    Sketcher.Constraint("DistanceX", 51, 3, -1, 1, 6.703277),
    Sketcher.Constraint("DistanceY", 51, 3, -1, 1, 51.491435),
    Sketcher.Constraint("DistanceX", 55, 3, -1, 1, 2.703277),
    Sketcher.Constraint("DistanceX", 58, 3, -1, 1, 10.703277),
    Sketcher.Constraint("DistanceY", 63, 3, -1, 1, 63.991435),
    Sketcher.Constraint("DistanceX", 46, 2, -1, 1, 0.703277),
    Sketcher.Constraint("DistanceY", 46, 2, -1, 1, 61.741435),
])
pocket1 = body.newObject("PartDesign::Pocket", "Pocket")
pocket1.Profile = sketch4
pocket1.Length = 0.5

doc.recompute()
